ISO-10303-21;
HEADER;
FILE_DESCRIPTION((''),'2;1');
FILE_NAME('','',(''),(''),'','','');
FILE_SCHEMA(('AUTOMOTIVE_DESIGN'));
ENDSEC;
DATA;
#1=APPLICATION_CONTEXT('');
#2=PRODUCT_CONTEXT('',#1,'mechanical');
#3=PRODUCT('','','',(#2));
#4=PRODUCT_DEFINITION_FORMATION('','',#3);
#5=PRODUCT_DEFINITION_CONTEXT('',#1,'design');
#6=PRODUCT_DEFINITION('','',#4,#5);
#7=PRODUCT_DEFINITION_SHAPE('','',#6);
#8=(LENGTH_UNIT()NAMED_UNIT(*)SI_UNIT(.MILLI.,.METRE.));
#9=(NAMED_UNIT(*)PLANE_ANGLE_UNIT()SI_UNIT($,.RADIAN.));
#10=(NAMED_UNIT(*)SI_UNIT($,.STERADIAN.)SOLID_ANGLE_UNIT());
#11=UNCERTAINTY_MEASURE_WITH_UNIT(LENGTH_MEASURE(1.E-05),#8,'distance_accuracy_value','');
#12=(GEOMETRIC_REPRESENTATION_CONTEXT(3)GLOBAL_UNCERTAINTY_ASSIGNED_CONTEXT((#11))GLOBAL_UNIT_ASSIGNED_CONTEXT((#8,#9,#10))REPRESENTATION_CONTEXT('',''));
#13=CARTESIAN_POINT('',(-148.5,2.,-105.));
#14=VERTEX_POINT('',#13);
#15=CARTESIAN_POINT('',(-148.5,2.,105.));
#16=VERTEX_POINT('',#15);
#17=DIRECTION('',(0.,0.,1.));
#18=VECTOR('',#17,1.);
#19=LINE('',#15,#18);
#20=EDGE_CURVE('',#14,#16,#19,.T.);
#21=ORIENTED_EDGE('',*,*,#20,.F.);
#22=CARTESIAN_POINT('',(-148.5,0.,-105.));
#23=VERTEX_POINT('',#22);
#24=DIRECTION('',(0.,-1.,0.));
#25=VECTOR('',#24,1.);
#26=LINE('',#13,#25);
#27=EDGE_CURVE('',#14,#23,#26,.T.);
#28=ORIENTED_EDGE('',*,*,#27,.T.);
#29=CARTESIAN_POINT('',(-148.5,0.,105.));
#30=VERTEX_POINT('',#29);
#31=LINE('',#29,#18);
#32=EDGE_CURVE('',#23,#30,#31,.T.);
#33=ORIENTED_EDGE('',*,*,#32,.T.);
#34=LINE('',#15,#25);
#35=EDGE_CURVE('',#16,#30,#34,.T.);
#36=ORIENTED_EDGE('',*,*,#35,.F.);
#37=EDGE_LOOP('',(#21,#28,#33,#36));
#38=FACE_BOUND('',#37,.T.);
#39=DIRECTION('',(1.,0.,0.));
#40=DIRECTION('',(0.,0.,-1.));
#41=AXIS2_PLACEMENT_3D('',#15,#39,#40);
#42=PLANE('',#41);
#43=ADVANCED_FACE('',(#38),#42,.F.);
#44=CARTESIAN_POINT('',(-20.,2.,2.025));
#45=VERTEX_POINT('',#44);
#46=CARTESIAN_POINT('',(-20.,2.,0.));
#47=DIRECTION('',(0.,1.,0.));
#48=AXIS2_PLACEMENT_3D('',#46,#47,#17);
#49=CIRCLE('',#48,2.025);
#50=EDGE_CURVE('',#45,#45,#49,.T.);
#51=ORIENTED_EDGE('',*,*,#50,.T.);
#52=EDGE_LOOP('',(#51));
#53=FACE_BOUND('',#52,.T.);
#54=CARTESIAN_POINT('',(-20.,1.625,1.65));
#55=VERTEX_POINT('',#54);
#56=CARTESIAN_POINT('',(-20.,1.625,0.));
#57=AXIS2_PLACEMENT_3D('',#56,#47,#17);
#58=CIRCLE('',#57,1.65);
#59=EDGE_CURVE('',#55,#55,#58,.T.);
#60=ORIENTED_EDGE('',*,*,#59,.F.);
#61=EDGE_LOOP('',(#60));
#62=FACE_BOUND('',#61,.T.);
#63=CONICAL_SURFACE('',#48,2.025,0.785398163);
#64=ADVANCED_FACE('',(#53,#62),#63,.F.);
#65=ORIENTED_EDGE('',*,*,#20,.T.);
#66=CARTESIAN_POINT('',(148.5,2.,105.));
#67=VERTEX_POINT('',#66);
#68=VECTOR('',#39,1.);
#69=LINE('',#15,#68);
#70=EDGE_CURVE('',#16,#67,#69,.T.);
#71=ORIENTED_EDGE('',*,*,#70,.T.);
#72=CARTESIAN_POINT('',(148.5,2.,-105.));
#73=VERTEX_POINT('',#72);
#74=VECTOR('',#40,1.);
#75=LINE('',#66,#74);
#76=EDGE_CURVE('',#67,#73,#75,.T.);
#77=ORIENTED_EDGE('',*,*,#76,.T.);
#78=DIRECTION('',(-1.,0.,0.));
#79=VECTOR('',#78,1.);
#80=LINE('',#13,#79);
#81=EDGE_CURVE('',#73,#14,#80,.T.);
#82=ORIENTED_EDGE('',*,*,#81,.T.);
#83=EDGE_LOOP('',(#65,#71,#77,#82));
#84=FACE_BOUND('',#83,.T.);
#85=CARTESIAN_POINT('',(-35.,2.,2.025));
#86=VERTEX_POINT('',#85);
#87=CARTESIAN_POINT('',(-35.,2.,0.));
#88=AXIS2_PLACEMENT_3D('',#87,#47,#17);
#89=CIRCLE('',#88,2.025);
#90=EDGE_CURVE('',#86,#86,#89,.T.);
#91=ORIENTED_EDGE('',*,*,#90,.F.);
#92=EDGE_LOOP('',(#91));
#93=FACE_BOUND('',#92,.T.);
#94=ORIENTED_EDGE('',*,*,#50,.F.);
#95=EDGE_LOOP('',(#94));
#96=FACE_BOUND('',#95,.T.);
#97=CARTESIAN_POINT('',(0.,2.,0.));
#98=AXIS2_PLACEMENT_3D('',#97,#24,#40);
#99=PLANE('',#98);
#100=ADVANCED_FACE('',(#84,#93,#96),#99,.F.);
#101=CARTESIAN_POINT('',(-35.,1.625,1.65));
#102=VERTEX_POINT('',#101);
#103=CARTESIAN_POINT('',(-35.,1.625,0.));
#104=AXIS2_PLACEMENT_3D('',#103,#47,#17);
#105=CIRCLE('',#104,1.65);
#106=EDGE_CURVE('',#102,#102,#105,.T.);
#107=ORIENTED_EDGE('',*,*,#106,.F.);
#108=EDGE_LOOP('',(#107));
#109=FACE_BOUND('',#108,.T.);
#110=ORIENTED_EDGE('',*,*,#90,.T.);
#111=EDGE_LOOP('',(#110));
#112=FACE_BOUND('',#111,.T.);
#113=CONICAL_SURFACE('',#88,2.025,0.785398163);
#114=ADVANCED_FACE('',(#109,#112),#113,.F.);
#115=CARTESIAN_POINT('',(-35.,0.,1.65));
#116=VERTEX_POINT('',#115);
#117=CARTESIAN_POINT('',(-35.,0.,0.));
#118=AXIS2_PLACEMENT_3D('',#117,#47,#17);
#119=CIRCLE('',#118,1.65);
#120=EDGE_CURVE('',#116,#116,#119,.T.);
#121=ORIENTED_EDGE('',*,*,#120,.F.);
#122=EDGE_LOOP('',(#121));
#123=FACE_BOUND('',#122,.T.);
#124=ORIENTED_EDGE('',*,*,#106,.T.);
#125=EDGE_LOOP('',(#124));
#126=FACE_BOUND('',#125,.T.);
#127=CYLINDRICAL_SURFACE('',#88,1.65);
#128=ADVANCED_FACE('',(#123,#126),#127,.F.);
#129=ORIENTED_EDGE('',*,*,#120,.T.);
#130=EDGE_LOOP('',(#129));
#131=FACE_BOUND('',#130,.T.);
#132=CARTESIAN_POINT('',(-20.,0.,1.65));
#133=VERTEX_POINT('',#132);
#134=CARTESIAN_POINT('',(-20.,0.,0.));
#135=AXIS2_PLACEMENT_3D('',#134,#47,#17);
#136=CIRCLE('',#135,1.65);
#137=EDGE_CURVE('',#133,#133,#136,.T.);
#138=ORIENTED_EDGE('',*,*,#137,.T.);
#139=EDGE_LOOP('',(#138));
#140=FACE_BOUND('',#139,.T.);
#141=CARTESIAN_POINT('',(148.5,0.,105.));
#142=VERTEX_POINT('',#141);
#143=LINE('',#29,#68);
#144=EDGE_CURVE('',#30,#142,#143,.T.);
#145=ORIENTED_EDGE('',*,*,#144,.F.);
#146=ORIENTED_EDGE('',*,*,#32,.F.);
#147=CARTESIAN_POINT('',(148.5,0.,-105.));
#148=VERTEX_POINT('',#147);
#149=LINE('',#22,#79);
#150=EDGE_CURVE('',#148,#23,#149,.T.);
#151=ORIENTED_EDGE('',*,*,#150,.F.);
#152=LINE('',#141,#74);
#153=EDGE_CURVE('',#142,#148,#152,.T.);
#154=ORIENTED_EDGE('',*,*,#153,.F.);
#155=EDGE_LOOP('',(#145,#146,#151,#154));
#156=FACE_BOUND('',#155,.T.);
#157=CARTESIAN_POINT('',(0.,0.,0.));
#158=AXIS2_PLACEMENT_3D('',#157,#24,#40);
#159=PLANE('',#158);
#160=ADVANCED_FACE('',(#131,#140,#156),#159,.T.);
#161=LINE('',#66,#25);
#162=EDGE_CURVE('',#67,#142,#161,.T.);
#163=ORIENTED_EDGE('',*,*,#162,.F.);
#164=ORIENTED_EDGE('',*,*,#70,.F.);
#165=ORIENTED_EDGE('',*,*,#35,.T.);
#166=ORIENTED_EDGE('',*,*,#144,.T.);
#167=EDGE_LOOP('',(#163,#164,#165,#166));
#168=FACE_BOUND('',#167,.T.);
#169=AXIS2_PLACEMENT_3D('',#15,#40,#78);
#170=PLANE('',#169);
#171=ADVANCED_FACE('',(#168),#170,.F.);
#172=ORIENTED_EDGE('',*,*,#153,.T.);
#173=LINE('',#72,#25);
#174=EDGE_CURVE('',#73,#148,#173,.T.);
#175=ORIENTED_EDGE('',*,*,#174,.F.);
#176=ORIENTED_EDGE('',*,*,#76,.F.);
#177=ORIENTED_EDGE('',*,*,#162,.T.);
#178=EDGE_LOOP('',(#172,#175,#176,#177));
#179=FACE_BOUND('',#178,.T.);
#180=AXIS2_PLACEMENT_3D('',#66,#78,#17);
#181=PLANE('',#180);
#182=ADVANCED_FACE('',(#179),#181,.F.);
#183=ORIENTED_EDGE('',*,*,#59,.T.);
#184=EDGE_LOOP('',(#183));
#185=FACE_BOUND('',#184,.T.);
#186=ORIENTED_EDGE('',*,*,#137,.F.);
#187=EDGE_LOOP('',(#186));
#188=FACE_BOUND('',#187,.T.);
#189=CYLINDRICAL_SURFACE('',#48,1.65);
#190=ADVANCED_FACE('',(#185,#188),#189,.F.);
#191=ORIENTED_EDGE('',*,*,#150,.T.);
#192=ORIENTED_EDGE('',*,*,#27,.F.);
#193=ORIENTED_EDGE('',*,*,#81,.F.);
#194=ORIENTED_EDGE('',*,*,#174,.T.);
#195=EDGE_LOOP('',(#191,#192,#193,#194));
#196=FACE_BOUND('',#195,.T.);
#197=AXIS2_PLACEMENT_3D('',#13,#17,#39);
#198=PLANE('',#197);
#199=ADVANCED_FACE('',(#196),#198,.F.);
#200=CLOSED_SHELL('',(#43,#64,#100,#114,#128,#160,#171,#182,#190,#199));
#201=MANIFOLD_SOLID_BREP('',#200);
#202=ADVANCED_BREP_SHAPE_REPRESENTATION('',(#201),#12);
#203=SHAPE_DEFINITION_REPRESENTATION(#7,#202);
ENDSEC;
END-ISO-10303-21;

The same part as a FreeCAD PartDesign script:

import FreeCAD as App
import Part
import Sketcher
from FreeCAD import Vector
Q = App.Units.Quantity


def add_polygon(sketch, points):
    """Adds a closed chain of lines whose ends are joined by coincident constraints."""
    first, n = sketch.GeometryCount, len(points)
    for a, b in zip(points, points[1:] + points[:1]):
        sketch.addGeometry(Part.LineSegment(App.Vector(*a, 0), App.Vector(*b, 0)), False)
    for i in range(n):
        sketch.addConstraint(Sketcher.Constraint("Coincident", first + i, 2, first + (i + 1) % n, 1))

doc = App.newDocument("Part")
body = doc.addObject("PartDesign::Body", "Body")

sketch1 = body.newObject("Sketcher::SketchObject", "Sketch")
sketch1.AttachmentSupport = (doc.getObject("XZ_Plane"), [""])
sketch1.MapMode = "FlatFace"
add_polygon(sketch1, [(-148, -105), (-148, 105), (148, 105), (148, -105)])
sketch1.addConstraint([
    Sketcher.Constraint("Vertical", 0),
    Sketcher.Constraint("Horizontal", 1),
    Sketcher.Constraint("Vertical", 2),
    Sketcher.Constraint("Horizontal", 3),
    Sketcher.Constraint("Symmetric", 0, 2, 2, 2, -1, 1),
    Sketcher.Constraint("DistanceX", 1, 1, 1, 2, Q("297 mm")),
    Sketcher.Constraint("DistanceY", 0, 1, 0, 2, Q("210 mm")),
])
pad1 = body.newObject("PartDesign::Pad", "Pad")
pad1.Profile = sketch1
pad1.Length = 2
pad1.Reversed = True

sketch2 = body.newObject("Sketcher::SketchObject", "Sketch001")
sketch2.AttachmentSupport = (doc.getObject("YZ_Plane"), [""])
sketch2.MapMode = "FlatFace"
sketch2.AttachmentOffset = App.Placement(Vector(0, 0, -20), App.Rotation())
add_polygon(sketch2, [(0, 0), (2, 0), (2, 2), (1.6, 1.6), (0, 1.6)])
sketch2.addConstraint([
    Sketcher.Constraint("Horizontal", 0),
    Sketcher.Constraint("Vertical", 1),
    Sketcher.Constraint("Horizontal", 3),
    Sketcher.Constraint("Vertical", 4),
    Sketcher.Constraint("Coincident", 4, 2, -1, 1),
    Sketcher.Constraint("DistanceX", 0, 1, 0, 2, Q("2 mm")),
    Sketcher.Constraint("Angle", 2, Q("-135 deg")),
    Sketcher.Constraint("DistanceY", 4, 2, 4, 1, Q("1.65 mm")),
    Sketcher.Constraint("DistanceX", 3, 2, 3, 1, Q("1.625 mm")),
])
groove = body.newObject("PartDesign::Groove", "Groove")
groove.Profile = sketch2
groove.ReferenceAxis = (sketch2, ["H_Axis"])
groove.Angle = 360
doc.recompute()

linearpattern = body.newObject("PartDesign::LinearPattern", "LinearPattern")
linearpattern.Originals = [groove]
linearpattern.Direction = (doc.getObject("X_Axis"), [""])
linearpattern.Mode = "offset"
linearpattern.Offset = 15
linearpattern.Occurrences = 2
linearpattern.Reversed = True
body.Tip = linearpattern

doc.recompute()
